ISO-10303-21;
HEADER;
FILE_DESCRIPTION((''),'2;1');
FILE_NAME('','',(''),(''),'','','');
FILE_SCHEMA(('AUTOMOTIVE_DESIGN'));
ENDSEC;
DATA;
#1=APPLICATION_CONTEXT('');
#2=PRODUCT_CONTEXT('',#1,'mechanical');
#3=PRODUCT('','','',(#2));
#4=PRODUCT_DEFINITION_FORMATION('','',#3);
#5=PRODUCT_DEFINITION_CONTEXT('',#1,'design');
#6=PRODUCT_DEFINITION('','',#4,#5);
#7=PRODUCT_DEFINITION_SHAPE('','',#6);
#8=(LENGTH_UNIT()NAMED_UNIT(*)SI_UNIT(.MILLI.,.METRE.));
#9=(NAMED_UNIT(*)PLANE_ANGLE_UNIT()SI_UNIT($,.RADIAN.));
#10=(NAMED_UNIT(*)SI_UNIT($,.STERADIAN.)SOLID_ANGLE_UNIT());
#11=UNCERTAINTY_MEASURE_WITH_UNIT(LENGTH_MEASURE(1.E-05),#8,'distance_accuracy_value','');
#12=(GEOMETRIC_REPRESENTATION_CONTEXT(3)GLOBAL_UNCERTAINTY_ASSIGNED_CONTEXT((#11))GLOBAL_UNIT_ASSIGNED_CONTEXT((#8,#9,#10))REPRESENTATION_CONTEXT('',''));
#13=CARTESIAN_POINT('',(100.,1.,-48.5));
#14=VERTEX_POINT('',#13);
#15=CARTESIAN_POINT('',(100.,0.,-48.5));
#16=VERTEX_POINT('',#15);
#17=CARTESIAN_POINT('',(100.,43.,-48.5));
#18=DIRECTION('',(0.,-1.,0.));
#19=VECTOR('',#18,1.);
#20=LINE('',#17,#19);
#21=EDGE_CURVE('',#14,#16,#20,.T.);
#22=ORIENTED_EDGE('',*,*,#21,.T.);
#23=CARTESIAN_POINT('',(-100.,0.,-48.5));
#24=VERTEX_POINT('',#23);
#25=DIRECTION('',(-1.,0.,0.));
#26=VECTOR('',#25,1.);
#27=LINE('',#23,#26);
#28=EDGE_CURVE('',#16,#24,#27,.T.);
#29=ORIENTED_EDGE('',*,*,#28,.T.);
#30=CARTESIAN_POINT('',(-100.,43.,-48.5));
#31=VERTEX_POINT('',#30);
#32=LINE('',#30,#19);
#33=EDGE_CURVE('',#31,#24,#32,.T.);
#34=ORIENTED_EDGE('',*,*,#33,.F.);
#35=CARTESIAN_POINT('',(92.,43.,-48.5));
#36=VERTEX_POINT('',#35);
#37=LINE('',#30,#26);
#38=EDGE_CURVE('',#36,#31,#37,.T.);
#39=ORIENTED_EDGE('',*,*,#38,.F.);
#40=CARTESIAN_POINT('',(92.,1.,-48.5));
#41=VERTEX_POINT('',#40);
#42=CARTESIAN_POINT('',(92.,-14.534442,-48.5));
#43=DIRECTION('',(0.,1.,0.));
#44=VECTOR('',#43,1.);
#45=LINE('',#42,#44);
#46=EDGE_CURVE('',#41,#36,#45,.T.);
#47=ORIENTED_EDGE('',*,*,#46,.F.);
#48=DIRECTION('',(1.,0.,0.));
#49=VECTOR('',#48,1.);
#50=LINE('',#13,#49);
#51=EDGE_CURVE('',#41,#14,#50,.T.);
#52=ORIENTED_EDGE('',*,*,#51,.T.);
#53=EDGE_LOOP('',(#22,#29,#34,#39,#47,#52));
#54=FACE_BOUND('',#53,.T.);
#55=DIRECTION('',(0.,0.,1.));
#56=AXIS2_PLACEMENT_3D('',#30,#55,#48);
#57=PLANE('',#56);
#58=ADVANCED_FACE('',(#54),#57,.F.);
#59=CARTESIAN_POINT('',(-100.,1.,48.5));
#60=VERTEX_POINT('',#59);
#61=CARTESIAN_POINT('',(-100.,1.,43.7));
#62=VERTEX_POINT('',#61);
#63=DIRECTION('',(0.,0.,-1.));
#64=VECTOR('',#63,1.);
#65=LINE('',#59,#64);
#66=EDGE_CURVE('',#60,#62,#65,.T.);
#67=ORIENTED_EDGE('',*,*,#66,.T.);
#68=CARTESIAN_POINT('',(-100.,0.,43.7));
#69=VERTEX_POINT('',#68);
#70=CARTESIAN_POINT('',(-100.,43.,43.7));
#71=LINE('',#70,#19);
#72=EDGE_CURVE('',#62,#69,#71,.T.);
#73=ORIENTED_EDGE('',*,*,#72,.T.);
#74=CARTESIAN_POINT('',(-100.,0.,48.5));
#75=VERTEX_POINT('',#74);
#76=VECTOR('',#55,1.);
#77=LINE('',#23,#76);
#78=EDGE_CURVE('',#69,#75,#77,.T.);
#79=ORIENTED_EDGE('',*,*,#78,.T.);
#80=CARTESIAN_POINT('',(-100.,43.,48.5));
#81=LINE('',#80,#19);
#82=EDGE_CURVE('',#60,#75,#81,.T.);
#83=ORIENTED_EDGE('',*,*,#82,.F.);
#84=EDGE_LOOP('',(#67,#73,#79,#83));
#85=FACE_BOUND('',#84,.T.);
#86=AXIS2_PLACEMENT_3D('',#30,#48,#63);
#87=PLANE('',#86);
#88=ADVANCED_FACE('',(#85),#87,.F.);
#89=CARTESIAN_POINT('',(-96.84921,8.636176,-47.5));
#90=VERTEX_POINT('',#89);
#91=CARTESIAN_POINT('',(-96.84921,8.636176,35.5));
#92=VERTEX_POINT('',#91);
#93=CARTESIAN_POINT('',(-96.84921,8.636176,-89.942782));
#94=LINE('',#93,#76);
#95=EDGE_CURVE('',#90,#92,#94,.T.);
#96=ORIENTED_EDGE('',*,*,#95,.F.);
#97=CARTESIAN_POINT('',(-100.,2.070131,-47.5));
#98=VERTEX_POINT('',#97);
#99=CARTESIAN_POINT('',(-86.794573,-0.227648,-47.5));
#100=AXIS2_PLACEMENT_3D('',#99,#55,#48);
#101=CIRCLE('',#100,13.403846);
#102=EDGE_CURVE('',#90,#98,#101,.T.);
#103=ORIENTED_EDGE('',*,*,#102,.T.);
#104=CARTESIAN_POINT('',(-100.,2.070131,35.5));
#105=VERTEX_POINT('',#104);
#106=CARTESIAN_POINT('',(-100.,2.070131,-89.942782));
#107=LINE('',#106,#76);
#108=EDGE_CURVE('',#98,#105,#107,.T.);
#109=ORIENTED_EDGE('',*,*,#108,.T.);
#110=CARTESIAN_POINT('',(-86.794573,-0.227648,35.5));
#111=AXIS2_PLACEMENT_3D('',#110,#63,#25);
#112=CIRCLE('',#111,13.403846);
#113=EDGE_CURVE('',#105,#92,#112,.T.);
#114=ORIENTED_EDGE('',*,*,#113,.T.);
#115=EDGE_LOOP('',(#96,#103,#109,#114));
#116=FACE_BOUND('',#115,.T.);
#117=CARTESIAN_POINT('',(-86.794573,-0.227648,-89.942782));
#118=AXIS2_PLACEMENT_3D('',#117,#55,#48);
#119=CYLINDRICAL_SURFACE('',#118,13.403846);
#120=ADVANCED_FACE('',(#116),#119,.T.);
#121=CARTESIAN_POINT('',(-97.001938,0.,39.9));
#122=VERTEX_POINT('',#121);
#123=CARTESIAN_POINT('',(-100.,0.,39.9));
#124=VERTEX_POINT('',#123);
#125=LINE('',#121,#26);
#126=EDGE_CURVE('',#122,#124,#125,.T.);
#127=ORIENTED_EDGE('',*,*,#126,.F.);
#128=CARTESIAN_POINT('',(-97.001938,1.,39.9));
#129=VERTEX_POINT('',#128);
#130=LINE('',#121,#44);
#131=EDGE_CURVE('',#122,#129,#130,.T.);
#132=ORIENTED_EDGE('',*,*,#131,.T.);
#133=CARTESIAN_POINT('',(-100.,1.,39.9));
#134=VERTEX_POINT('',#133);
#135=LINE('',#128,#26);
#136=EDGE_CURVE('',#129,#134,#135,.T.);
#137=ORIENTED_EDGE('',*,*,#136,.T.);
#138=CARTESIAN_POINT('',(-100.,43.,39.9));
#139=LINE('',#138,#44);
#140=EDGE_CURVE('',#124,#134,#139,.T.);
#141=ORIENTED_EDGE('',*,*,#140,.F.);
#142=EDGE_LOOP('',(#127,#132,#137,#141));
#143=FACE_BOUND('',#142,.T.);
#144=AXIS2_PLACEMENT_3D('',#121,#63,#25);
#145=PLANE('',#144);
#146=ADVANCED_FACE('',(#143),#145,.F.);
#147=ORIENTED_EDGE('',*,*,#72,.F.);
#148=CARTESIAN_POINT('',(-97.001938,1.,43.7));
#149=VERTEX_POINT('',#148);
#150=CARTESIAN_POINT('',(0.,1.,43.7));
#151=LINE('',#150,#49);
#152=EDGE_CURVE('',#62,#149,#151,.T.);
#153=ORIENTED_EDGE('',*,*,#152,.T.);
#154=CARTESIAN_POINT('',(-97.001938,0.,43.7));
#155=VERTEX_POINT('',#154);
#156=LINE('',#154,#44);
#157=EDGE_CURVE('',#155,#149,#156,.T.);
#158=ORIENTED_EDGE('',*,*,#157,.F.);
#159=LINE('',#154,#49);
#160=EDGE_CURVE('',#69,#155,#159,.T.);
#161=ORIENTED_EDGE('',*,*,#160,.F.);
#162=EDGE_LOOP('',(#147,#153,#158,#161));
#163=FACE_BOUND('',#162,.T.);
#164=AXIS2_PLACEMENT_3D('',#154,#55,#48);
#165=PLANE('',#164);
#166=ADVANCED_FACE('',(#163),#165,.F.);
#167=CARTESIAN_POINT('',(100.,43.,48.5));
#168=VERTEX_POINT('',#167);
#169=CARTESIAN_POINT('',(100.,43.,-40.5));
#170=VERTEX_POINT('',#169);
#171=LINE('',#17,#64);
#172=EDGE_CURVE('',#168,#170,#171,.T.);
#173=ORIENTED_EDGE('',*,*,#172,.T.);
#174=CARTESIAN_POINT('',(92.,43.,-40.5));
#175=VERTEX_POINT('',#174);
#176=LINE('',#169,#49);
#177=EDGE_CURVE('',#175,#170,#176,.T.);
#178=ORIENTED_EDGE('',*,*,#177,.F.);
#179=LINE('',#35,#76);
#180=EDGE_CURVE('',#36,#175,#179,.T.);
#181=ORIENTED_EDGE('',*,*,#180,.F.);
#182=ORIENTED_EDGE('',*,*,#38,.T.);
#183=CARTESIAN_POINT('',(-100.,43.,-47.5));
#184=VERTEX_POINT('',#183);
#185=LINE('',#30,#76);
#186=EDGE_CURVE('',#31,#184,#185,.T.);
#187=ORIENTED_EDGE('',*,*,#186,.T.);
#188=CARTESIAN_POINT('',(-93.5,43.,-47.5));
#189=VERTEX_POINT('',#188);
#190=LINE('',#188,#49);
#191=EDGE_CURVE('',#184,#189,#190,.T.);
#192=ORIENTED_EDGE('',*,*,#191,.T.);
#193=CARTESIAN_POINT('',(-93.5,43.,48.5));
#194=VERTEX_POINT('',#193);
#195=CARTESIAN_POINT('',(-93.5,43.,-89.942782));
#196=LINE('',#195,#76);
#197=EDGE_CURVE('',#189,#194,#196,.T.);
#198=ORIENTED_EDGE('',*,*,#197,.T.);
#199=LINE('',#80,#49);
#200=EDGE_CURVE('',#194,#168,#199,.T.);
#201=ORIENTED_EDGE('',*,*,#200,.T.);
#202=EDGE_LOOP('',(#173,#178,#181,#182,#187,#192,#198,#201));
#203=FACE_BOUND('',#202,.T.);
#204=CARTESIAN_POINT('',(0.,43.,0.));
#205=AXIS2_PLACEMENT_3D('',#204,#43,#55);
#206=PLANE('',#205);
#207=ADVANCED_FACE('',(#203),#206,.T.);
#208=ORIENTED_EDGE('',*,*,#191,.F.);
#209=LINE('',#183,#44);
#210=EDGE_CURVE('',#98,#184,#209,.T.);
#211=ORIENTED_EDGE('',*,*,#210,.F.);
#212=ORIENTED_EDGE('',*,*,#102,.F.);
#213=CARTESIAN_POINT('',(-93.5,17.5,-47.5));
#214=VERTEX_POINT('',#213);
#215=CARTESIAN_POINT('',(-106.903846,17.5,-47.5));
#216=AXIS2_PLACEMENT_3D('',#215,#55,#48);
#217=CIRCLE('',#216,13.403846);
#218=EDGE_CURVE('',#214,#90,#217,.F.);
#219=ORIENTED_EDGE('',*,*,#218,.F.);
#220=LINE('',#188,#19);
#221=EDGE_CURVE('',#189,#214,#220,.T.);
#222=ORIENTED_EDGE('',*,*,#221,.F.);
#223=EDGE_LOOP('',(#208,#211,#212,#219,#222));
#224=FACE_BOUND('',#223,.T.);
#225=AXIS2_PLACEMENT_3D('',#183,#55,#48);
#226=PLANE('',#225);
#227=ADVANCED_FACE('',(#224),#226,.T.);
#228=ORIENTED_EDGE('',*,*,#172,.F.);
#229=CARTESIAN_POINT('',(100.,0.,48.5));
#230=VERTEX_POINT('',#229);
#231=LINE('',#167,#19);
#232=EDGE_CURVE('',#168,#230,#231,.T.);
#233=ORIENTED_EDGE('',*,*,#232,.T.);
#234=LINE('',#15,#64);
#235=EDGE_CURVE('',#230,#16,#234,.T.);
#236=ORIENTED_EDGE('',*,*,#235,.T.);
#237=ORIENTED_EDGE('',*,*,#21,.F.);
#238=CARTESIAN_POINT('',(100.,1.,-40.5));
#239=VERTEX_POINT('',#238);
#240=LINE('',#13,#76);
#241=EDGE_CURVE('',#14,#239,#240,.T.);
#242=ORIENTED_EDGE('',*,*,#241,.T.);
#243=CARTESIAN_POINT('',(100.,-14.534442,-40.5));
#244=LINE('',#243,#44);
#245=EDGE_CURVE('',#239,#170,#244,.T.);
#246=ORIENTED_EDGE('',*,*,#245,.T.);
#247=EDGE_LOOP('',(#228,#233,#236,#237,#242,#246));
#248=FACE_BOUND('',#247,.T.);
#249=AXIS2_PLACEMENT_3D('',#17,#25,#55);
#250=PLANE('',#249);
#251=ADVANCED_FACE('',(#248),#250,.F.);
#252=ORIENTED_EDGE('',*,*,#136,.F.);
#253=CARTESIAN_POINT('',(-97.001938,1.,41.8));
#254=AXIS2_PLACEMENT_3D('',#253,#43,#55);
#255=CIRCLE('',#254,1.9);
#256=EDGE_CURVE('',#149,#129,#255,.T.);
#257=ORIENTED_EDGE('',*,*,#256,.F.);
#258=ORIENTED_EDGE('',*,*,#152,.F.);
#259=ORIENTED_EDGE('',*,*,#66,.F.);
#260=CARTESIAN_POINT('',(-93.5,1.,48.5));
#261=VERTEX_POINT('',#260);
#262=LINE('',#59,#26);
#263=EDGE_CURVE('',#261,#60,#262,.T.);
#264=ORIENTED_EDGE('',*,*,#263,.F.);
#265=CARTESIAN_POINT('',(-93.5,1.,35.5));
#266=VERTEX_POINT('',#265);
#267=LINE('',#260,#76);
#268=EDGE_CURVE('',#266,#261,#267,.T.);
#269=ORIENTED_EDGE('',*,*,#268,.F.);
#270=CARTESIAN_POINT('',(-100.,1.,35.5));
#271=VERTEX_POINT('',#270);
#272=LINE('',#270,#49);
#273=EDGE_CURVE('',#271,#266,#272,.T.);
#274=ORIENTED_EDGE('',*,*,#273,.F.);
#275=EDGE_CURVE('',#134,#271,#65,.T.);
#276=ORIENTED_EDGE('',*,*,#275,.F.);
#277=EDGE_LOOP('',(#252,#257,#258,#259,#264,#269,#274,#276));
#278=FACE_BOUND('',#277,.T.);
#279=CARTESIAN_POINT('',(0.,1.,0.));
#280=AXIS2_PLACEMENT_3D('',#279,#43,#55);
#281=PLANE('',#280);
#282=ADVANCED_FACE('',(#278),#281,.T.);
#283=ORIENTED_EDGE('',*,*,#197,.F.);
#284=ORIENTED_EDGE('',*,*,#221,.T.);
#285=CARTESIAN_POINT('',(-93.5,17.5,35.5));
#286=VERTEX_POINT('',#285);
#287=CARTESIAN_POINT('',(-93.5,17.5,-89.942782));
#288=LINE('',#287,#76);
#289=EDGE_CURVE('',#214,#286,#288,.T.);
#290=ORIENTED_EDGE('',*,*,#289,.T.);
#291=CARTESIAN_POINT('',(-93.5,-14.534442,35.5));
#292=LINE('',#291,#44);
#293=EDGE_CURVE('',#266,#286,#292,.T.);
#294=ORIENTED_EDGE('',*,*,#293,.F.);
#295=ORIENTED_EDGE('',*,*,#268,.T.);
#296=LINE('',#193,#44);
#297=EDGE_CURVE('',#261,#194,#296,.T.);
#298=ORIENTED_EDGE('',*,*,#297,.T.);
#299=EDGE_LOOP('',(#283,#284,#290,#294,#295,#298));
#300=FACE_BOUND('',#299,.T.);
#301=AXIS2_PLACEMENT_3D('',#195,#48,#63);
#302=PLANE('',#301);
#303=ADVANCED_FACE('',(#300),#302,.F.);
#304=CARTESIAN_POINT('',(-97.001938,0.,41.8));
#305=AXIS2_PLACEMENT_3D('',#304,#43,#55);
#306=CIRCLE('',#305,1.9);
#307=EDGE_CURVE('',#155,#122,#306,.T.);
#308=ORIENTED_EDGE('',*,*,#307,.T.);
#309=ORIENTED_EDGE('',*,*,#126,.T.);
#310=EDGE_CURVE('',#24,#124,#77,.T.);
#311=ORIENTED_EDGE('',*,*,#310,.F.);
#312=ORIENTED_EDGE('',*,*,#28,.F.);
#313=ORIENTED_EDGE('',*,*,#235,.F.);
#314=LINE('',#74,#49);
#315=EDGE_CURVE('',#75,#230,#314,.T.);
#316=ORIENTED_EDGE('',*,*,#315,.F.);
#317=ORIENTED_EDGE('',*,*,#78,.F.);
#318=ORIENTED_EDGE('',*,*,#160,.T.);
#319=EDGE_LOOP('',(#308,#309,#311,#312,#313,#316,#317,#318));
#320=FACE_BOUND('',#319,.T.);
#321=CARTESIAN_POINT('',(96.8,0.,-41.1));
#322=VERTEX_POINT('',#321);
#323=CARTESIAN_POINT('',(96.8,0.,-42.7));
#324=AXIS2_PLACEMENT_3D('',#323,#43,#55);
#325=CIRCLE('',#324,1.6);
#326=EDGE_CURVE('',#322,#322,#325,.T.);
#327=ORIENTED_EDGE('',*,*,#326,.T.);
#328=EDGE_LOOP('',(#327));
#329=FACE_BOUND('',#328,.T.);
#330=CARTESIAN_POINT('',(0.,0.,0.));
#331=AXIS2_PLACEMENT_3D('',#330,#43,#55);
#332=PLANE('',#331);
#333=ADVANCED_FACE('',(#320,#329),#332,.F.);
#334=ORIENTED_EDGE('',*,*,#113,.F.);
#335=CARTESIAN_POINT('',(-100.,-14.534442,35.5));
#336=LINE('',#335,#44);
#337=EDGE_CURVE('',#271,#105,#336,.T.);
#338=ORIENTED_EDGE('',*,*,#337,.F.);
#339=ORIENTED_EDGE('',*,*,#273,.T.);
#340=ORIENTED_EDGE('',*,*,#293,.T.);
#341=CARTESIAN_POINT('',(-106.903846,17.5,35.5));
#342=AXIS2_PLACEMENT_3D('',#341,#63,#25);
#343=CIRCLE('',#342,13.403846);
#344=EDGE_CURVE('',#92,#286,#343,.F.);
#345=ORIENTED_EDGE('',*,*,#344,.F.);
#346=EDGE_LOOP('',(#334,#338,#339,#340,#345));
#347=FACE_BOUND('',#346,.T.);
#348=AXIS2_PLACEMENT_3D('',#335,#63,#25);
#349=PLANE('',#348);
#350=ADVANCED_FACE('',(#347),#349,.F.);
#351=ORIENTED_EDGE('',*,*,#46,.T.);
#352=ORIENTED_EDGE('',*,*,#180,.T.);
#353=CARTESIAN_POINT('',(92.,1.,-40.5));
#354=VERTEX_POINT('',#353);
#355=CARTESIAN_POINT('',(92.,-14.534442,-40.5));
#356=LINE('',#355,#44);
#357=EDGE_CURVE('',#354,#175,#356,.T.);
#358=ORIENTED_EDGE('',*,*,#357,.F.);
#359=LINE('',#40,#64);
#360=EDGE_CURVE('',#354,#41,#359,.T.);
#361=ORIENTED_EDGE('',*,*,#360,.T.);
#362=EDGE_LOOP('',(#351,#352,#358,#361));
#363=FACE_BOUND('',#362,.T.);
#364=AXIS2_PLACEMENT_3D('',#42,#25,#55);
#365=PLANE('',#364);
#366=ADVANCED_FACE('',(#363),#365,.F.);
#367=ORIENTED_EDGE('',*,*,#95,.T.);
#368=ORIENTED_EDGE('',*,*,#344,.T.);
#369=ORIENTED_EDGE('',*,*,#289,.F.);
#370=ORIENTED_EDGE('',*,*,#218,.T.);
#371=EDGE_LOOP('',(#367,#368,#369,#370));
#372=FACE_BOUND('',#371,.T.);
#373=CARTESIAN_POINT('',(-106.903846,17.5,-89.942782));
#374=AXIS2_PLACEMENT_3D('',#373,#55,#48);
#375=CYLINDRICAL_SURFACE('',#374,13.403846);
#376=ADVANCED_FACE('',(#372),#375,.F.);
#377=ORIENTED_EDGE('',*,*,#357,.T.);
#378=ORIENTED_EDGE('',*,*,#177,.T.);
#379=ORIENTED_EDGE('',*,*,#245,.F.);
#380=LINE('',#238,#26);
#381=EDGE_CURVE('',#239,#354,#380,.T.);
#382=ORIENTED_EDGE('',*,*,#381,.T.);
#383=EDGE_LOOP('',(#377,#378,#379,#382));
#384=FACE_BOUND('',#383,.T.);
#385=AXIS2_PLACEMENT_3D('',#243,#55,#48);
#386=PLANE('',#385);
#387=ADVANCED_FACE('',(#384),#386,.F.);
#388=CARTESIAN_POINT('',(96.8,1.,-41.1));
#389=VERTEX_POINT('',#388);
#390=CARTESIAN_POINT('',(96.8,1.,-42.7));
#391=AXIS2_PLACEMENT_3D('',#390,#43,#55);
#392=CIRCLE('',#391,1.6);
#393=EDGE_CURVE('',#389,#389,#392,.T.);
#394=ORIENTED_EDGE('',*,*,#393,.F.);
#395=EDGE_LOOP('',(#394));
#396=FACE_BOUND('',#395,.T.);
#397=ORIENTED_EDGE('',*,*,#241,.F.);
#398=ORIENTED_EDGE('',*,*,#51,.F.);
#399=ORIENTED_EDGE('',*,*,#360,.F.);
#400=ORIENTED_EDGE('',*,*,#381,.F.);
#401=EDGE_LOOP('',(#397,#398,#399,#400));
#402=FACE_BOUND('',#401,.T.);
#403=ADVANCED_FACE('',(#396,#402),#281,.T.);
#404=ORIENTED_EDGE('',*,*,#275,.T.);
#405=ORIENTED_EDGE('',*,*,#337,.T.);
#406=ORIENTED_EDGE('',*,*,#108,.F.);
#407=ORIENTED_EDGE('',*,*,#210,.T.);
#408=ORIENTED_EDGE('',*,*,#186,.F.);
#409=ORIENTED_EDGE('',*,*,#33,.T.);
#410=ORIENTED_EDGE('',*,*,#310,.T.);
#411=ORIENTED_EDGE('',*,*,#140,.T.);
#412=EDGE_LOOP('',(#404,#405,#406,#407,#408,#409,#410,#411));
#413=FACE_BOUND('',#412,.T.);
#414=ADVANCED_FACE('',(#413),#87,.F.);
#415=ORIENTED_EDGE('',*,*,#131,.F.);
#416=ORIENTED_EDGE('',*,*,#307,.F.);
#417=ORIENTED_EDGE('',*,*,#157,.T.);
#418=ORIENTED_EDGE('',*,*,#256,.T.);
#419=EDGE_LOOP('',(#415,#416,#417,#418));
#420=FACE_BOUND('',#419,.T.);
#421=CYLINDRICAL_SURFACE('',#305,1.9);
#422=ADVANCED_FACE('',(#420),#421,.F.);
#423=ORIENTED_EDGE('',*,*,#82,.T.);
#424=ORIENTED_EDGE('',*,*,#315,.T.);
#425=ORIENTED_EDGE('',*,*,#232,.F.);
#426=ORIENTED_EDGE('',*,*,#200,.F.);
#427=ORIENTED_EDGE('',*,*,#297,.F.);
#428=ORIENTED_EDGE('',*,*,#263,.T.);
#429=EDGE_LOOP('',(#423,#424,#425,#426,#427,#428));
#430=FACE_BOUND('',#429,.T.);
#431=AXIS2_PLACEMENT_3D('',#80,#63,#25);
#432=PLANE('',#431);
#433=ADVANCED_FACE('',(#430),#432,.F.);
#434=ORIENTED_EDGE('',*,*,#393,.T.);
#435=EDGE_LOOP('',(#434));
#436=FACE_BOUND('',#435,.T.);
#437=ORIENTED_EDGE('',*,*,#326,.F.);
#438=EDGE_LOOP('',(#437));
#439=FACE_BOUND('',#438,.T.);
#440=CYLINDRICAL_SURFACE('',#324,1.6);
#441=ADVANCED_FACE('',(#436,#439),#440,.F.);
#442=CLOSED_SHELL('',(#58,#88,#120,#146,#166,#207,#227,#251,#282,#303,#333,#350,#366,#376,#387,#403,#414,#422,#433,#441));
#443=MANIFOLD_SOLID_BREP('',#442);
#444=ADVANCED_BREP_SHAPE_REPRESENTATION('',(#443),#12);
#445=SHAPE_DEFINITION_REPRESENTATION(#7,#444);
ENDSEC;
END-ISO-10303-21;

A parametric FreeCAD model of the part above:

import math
import FreeCAD as App
import Part
import Sketcher
from FreeCAD import Vector


def add_polygon(sketch, points):
    """Adds a closed chain of lines whose ends are joined by coincident constraints."""
    first, n = sketch.GeometryCount, len(points)
    for a, b in zip(points, points[1:] + points[:1]):
        sketch.addGeometry(Part.LineSegment(App.Vector(*a, 0), App.Vector(*b, 0)), False)
    for i in range(n):
        sketch.addConstraint(Sketcher.Constraint("Coincident", first + i, 2, first + (i + 1) % n, 1))

doc = App.newDocument("Part")
body = doc.addObject("PartDesign::Body", "Body")

# Sketch on XZ plane
sketch1 = body.newObject("Sketcher::SketchObject", "Sketch")
sketch1.AttachmentSupport = (doc.getObject("XZ_Plane"), [""])
sketch1.MapMode = "FlatFace"
add_polygon(sketch1, [(-100, -48), (-100, 48), (100, 48), (100, -48)])  # lines 0-3
sketch1.addConstraint([
    Sketcher.Constraint("Vertical", 0),
    Sketcher.Constraint("Horizontal", 1),
    Sketcher.Constraint("Vertical", 2),
    Sketcher.Constraint("Horizontal", 3),
    Sketcher.Constraint("Symmetric", 0, 2, 2, 2, -1, 1),
    Sketcher.Constraint("DistanceX", 1, 1, 1, 2, 200.0),
    Sketcher.Constraint("DistanceY", 0, 1, 0, 2, 97.0),
])
pad1 = body.newObject("PartDesign::Pad", "Pad")
pad1.Profile = sketch1
pad1.Length = 43
pad1.Reversed = True

# Sketch on XY plane
sketch2 = body.newObject("Sketcher::SketchObject", "Sketch001")
sketch2.AttachmentSupport = (doc.getObject("XY_Plane"), [""])
sketch2.MapMode = "FlatFace"
sketch2.AttachmentOffset = App.Placement(Vector(0, 0, 48.5), App.Rotation())
sketch2.addGeometry([
    Part.LineSegment(Vector(-94, 18, 0), Vector(-94, 43, 0)),  # 0
    Part.LineSegment(Vector(-94, 43, 0), Vector(-100, 43, 0)),  # 1
    Part.LineSegment(Vector(-100, 43, 0), Vector(-100, 2, 0)),  # 2
    Part.ArcOfCircle(Part.Circle(Vector(-87, 0, 0), Vector(0, 0, 1), 13), math.radians(139), math.radians(170)),  # 3
    Part.ArcOfCircle(Part.Circle(Vector(-107, 18, 0), Vector(0, 0, 1), 13), math.radians(-41), math.radians(0)),  # 4
], False)
sketch2.addConstraint([
    Sketcher.Constraint("Coincident", 0, 2, 1, 1),
    Sketcher.Constraint("Coincident", 1, 2, 2, 1),
    Sketcher.Constraint("Coincident", 2, 2, 3, 2),
    Sketcher.Constraint("Tangent", 3, 1, 4, 1),
    Sketcher.Constraint("Tangent", 4, 2, 0, 1),
    Sketcher.Constraint("Vertical", 0),
    Sketcher.Constraint("Horizontal", 1),
    Sketcher.Constraint("Vertical", 2),
    Sketcher.Constraint("Equal", 3, 4),
    Sketcher.Constraint("DistanceX", 1, 2, 1, 1, 6.5),
    Sketcher.Constraint("DistanceY", 0, 1, 0, 2, 25.5),
    Sketcher.Constraint("DistanceY", -1, 1, 0, 2, 43.0),
    Sketcher.Constraint("DistanceX", 1, 2, -1, 1, 100.0),
    Sketcher.Constraint("Radius", 3, 13.403846),
    Sketcher.Constraint("DistanceY", 2, 2, 2, 1, 40.929869),
])
pocket1 = body.newObject("PartDesign::Pocket", "Pocket")
pocket1.Profile = sketch2
pocket1.Length = 96

# Sketch on XZ plane
sketch3 = body.newObject("Sketcher::SketchObject", "Sketch002")
sketch3.AttachmentSupport = (doc.getObject("XZ_Plane"), [""])
sketch3.MapMode = "FlatFace"
sketch3.AttachmentOffset = App.Placement(Vector(0, 0, -43), App.Rotation())
add_polygon(sketch3, [(-100, 36), (-100, 48), (-94, 48), (-94, 36)])  # lines 0-3
add_polygon(sketch3, [(92, -48), (92, -40), (100, -40), (100, -48)])  # lines 4-7
sketch3.addConstraint([
    Sketcher.Constraint("Vertical", 0),
    Sketcher.Constraint("Horizontal", 1),
    Sketcher.Constraint("Vertical", 2),
    Sketcher.Constraint("Horizontal", 3),
    Sketcher.Constraint("Vertical", 4),
    Sketcher.Constraint("Horizontal", 5),
    Sketcher.Constraint("Vertical", 6),
    Sketcher.Constraint("Horizontal", 7),
    Sketcher.Constraint("Symmetric", 0, 2, 6, 2, -1, 1),
    Sketcher.Constraint("Equal", 7, 4),
    Sketcher.Constraint("DistanceX", 5, 1, 5, 2, 8.0),
    Sketcher.Constraint("DistanceY", 0, 1, 0, 2, 13.0),
    Sketcher.Constraint("DistanceX", 1, 1, 1, 2, 6.5),
    Sketcher.Constraint("DistanceX", 0, 2, -1, 1, 100.0),
    Sketcher.Constraint("DistanceY", 4, 2, 2, 2, 76.0),
])
pocket2 = body.newObject("PartDesign::Pocket", "Pocket001")
pocket2.Profile = sketch3
pocket2.Length = 42
pocket2.Reversed = True

# Sketch on XZ plane
sketch4 = body.newObject("Sketcher::SketchObject", "Sketch003")
sketch4.AttachmentSupport = (doc.getObject("XZ_Plane"), [""])
sketch4.MapMode = "FlatFace"
sketch4.AttachmentOffset = App.Placement(Vector(0, 0, -1), App.Rotation())
sketch4.addGeometry([
    Part.Circle(Vector(96.8, -42.7, 0), Vector(0, 0, 1), 1.6),  # 0
    Part.LineSegment(Vector(-106.2, 43.7, 0), Vector(-97, 43.7, 0)),  # 1
    Part.ArcOfCircle(Part.Circle(Vector(-97, 41.8, 0), Vector(0, 0, 1), 1.9), math.radians(-90), math.radians(90)),  # 2
    Part.LineSegment(Vector(-97, 39.9, 0), Vector(-106.2, 39.9, 0)),  # 3
    Part.ArcOfCircle(Part.Circle(Vector(-106.2, 41.8, 0), Vector(0, 0, 1), 1.9), math.radians(90), math.radians(270)),  # 4
], False)
sketch4.addConstraint([
    Sketcher.Constraint("Tangent", 1, 2, 2, 2),
    Sketcher.Constraint("Tangent", 2, 1, 3, 1),
    Sketcher.Constraint("Tangent", 3, 2, 4, 2),
    Sketcher.Constraint("Tangent", 4, 1, 1, 1),
    Sketcher.Constraint("Horizontal", 1),
    Sketcher.Constraint("Horizontal", 3),
    Sketcher.Constraint("Diameter", 0, 3.2),
    Sketcher.Constraint("Radius", 2, 1.9),
    Sketcher.Constraint("DistanceX", -1, 1, 0, 3, 96.8),
    Sketcher.Constraint("DistanceY", 0, 3, -1, 1, 42.7),
    Sketcher.Constraint("DistanceY", -1, 1, 2, 3, 41.8),
    Sketcher.Constraint("DistanceX", 1, 1, 1, 2, 9.163355),
    Sketcher.Constraint("DistanceX", 2, 3, -1, 1, 97.001938),
])
pocket3 = body.newObject("PartDesign::Pocket", "Pocket002")
pocket3.Profile = sketch4
pocket3.Type = "ThroughAll"
pocket3.Reversed = True

doc.recompute()
